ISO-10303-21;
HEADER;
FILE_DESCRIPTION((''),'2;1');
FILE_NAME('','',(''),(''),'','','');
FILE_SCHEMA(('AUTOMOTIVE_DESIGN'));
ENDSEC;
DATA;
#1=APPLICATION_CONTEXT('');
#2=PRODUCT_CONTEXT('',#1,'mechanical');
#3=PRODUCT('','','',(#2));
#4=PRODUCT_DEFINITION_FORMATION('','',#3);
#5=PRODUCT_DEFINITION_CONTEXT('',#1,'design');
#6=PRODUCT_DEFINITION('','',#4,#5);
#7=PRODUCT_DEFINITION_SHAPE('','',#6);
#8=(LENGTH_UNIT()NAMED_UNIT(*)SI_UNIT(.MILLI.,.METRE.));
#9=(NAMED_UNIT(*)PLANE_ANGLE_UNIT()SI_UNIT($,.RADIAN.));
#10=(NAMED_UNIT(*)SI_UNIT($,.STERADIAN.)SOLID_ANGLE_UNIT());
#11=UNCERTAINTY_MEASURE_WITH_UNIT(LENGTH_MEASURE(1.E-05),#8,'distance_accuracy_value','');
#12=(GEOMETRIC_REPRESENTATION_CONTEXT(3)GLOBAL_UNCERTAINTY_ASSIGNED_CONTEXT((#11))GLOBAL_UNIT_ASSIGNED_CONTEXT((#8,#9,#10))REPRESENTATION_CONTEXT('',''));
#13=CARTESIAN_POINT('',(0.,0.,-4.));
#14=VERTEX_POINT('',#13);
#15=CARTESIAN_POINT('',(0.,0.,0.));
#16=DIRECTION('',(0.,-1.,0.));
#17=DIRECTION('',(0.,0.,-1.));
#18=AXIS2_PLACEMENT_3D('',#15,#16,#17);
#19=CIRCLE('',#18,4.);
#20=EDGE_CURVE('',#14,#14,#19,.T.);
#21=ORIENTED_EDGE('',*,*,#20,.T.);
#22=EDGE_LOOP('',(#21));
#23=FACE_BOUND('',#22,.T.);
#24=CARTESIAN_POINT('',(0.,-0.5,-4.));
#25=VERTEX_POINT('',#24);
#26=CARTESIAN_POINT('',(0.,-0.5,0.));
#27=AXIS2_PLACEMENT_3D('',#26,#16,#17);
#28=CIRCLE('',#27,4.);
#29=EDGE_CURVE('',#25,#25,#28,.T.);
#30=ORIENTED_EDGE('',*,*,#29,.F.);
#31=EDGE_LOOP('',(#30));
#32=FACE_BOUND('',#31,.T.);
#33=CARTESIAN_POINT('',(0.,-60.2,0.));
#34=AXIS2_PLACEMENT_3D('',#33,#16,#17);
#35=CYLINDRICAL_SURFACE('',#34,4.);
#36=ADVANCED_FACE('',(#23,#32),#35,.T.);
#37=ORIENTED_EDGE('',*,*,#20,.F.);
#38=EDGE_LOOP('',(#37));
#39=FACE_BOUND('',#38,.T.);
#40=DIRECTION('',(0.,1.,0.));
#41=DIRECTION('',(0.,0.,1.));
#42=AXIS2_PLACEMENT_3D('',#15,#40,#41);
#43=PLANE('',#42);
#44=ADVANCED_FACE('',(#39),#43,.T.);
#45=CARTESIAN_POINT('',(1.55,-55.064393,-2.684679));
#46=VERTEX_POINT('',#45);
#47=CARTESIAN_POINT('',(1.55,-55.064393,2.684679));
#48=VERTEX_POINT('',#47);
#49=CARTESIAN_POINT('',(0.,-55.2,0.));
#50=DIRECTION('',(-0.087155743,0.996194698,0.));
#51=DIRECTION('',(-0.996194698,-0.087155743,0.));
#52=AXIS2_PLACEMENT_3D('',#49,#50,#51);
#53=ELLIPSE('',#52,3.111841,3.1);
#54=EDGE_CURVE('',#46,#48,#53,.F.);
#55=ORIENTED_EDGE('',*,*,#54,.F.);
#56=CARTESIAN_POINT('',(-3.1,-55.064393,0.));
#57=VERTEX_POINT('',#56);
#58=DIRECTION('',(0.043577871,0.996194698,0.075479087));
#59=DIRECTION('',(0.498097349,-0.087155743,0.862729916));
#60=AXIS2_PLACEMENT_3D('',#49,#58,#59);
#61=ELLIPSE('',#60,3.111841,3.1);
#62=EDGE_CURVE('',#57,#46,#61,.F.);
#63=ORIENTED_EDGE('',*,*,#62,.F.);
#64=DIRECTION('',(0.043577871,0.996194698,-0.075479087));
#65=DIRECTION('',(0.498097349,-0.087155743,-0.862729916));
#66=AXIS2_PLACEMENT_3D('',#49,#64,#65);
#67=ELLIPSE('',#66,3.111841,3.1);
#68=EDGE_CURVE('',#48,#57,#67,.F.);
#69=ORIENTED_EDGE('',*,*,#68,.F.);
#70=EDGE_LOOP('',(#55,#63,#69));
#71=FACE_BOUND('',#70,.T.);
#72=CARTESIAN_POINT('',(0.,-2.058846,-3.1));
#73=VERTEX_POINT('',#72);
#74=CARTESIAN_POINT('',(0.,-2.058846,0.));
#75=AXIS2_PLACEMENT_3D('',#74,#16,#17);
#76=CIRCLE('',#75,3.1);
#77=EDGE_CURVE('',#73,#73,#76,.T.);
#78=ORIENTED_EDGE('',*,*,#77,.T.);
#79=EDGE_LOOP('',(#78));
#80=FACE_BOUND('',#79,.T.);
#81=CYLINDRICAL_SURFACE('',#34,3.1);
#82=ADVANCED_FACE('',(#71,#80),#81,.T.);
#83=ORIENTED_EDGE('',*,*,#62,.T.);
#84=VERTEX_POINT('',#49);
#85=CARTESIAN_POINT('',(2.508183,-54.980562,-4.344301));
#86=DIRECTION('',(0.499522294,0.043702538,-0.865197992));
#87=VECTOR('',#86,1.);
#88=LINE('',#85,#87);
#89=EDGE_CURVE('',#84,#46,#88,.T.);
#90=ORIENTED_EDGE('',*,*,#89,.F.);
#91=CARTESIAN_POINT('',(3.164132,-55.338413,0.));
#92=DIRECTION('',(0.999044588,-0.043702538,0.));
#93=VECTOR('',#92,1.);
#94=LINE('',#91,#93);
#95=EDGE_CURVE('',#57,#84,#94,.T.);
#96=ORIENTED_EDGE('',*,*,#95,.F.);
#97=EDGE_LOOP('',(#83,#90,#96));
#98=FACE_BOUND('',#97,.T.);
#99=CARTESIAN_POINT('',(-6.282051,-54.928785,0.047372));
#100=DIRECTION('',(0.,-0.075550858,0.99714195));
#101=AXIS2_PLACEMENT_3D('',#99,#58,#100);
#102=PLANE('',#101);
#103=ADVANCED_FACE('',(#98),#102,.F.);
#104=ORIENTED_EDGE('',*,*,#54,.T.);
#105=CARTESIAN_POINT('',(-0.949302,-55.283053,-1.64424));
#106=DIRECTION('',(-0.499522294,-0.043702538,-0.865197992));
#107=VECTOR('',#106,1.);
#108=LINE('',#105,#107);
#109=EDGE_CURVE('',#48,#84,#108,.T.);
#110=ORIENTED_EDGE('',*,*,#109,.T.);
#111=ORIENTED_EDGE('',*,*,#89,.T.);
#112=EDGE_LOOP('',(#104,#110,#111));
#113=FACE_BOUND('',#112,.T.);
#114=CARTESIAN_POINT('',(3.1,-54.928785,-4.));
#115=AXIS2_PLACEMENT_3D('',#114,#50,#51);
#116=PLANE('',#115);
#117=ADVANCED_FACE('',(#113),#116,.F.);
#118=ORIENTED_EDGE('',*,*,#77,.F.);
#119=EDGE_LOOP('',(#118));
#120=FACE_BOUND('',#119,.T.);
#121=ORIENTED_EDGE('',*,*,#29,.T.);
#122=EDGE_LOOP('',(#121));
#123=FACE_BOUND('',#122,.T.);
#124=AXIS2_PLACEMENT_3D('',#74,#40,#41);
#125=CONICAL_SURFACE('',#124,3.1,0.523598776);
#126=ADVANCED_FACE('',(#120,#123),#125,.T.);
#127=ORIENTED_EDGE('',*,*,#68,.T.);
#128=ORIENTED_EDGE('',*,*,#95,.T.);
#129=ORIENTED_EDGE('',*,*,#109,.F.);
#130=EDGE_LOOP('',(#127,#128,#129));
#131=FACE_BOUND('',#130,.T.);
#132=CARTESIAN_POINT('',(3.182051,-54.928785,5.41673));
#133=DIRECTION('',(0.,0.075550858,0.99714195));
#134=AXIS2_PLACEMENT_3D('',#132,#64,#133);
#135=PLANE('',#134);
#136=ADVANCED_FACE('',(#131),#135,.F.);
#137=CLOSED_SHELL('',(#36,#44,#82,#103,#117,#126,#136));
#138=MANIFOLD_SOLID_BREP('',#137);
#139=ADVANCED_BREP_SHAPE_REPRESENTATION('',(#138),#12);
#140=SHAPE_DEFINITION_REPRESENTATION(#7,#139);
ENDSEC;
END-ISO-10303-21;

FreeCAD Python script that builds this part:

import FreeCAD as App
import Part
import Sketcher
Q = App.Units.Quantity


def add_polygon(sketch, points):
    """Adds a closed chain of lines whose ends are joined by coincident constraints."""
    first, n = sketch.GeometryCount, len(points)
    for a, b in zip(points, points[1:] + points[:1]):
        sketch.addGeometry(Part.LineSegment(App.Vector(*a, 0), App.Vector(*b, 0)), False)
    for i in range(n):
        sketch.addConstraint(Sketcher.Constraint("Coincident", first + i, 2, first + (i + 1) % n, 1))

doc = App.newDocument("Part")
body = doc.addObject("PartDesign::Body", "Body")

sketch1 = body.newObject("Sketcher::SketchObject", "Sketch")
sketch1.AttachmentSupport = (doc.getObject("XY_Plane"), [""])
sketch1.MapMode = "FlatFace"
add_polygon(sketch1, [(4, 0), (0, 0), (0, -55.2), (3.1, -55.2), (3.1, -2.1), (4, -0.5)])
sketch1.addConstraint([
    Sketcher.Constraint("Horizontal", 0),
    Sketcher.Constraint("Vertical", 1),
    Sketcher.Constraint("Horizontal", 2),
    Sketcher.Constraint("Vertical", 3),
    Sketcher.Constraint("Vertical", 5),
    Sketcher.Constraint("Coincident", 0, 2, -1, 1),
    Sketcher.Constraint("DistanceX", 0, 2, 0, 1, 4.0),
    Sketcher.Constraint("Angle", 4, Q("60 deg")),
    Sketcher.Constraint("DistanceX", 2, 1, 2, 2, 3.1),
    Sketcher.Constraint("DistanceY", 1, 2, 1, 1, 55.2),
    Sketcher.Constraint("DistanceY", 5, 1, 5, 2, 0.5),
])
revolution = body.newObject("PartDesign::Revolution", "Revolution")
revolution.Profile = sketch1
revolution.ReferenceAxis = (sketch1, ["V_Axis"])
revolution.Angle = 360

sketch2 = body.newObject("Sketcher::SketchObject", "Sketch001")
sketch2.AttachmentSupport = (doc.getObject("XY_Plane"), [""])
sketch2.MapMode = "FlatFace"
add_polygon(sketch2, [(0, -55.2), (3.1, -55.2), (3.1, -54.93)])
sketch2.addConstraint([
    Sketcher.Constraint("Horizontal", 0),
    Sketcher.Constraint("Vertical", 1),
    Sketcher.Constraint("PointOnObject", 2, 2, -2),
    Sketcher.Constraint("Angle", 2, Q("-175 deg")),
    Sketcher.Constraint("DistanceX", 0, 1, 0, 2, 3.1),
    Sketcher.Constraint("DistanceY", 0, 2, -1, 1, 55.2),
])
pocket1 = body.newObject("PartDesign::Pocket", "Pocket")
pocket1.Profile = sketch2
pocket1.Length = 112.978196
pocket1.Midplane = True
doc.recompute()

polarpattern = body.newObject("PartDesign::PolarPattern", "PolarPattern")
polarpattern.Originals = [pocket1]
polarpattern.Axis = (doc.getObject("Y_Axis"), [""])
polarpattern.Angle = 360
polarpattern.Occurrences = 3
body.Tip = polarpattern

doc.recompute()
